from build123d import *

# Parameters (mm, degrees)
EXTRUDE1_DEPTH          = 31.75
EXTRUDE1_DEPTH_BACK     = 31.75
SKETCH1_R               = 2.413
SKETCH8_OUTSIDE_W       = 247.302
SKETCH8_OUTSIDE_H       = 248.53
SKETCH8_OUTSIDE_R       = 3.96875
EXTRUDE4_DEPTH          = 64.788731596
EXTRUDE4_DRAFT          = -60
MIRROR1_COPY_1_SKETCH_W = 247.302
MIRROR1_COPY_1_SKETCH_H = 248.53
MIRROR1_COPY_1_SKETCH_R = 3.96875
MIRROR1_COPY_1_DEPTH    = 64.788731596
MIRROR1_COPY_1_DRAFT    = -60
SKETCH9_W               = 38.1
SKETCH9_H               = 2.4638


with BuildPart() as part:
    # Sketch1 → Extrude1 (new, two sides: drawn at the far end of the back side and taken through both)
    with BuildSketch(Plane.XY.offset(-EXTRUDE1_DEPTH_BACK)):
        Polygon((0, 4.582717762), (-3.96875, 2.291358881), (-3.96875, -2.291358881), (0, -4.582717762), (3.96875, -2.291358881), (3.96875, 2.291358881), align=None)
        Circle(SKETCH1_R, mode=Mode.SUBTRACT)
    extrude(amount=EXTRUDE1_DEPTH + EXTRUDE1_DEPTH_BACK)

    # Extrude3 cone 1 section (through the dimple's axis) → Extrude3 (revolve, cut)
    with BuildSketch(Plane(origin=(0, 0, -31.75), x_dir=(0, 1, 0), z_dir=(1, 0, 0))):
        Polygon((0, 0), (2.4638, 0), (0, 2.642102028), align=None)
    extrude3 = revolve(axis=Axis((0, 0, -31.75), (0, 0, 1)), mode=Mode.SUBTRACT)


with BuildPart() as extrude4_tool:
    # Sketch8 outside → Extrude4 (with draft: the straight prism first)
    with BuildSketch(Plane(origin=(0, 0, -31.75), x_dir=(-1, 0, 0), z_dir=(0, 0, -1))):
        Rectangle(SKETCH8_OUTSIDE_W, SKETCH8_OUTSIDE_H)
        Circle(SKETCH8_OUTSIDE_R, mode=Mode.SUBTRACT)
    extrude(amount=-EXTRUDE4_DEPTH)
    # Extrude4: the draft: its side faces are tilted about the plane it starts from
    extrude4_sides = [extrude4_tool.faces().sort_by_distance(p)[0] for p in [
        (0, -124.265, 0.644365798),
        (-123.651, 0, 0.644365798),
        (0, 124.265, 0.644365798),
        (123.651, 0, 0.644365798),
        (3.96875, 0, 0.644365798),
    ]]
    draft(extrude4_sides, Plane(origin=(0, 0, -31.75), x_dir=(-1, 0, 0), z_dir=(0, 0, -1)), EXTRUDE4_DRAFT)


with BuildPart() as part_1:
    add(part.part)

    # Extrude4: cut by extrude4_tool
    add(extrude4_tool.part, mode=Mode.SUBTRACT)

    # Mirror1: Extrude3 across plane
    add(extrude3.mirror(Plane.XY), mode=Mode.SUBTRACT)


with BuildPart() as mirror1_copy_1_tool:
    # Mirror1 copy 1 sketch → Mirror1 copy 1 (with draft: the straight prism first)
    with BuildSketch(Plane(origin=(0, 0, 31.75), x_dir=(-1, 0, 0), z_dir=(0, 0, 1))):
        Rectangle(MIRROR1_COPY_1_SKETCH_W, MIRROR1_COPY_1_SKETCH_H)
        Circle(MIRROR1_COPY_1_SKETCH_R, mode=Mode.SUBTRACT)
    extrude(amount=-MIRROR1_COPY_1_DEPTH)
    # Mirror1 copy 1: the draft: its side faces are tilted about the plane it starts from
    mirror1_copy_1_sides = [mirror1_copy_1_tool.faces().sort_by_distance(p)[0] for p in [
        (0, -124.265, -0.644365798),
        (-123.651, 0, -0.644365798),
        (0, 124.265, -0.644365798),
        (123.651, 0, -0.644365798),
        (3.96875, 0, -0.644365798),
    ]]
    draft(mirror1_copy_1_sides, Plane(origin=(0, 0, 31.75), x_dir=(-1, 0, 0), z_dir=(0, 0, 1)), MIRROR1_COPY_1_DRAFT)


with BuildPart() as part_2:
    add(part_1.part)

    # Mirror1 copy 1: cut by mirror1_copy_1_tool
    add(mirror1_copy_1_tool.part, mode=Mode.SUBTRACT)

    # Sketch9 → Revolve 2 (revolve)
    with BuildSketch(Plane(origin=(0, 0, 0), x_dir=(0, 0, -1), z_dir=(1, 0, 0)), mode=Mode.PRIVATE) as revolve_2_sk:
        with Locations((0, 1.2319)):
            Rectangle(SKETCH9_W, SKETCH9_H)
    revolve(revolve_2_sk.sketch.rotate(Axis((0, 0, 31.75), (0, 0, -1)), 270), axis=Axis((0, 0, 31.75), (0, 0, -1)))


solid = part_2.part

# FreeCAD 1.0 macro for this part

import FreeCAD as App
import Part
import Sketcher
from FreeCAD import Vector
Q = App.Units.Quantity


def faces_at(feature, points):
    """Names of the faces that lie closest to the given points."""
    faces = feature.Shape.Faces
    near = lambda p: min(range(len(faces)), key=lambda i: faces[i].distToShape(Part.Vertex(*p))[0])
    return sorted({f"Face{near(p) + 1}" for p in points})


def add_polygon(sketch, points):
    """Adds a closed chain of lines whose ends are joined by coincident constraints."""
    first, n = sketch.GeometryCount, len(points)
    for a, b in zip(points, points[1:] + points[:1]):
        sketch.addGeometry(Part.LineSegment(App.Vector(*a, 0), App.Vector(*b, 0)), False)
    for i in range(n):
        sketch.addConstraint(Sketcher.Constraint("Coincident", first + i, 2, first + (i + 1) % n, 1))

doc = App.newDocument("Part")
params = doc.addObject("Spreadsheet::Sheet", "Params")
for row, (alias, value) in enumerate([
    ("sketch1_diameter", "0.19 in"),
    ("pad1_length", "1.25 in"),
    ("pad1_length2", "1.25 in"),
    ("sketch2_width", "0.097 in"),
    ("groove_angle", "360 deg"),
    ("sketch3_diameter", "0.3125 in"),
    ("pad2_length", "64.788732 mm"),
    ("draft_angle", "60 deg"),
    ("sketch4_diameter", "0.3125 in"),
    ("pad3_length", "64.788732 mm"),
    ("draft2_angle", "60 deg"),
    ("sketch5_height", "1.5 in"),
    ("sketch5_width", "0.097 in"),
    ("revolution_angle", "360 deg"),
], start=1):
    params.set(f"A{row}", alias)
    params.set(f"B{row}", "=" + value)
    params.setAlias(f"B{row}", alias)

body = doc.addObject("PartDesign::Body", "Body")

# Sketch on XY plane
sketch1 = body.newObject("Sketcher::SketchObject", "Sketch")
sketch1.AttachmentSupport = (doc.getObject("XY_Plane"), [""])
sketch1.MapMode = "FlatFace"
add_polygon(sketch1, [(0, 4.582718), (-3.96875, 2.291359), (-3.96875, -2.291359), (0, -4.582718), (3.96875, -2.291359), (3.96875, 2.291359)])  # lines 0-5
sketch1.addGeometry(Part.Circle(Vector(0, 0, 0), Vector(0, 0, 1), 2.413), False)  # 6
sketch1.addConstraint([
    Sketcher.Constraint("Vertical", 1),
    Sketcher.Constraint("Vertical", 4),
    Sketcher.Constraint("Coincident", 6, 3, -1, 1),
    Sketcher.Constraint("Symmetric", 0, 2, 3, 2, -1, 1),
    Sketcher.Constraint("Symmetric", 2, 2, 5, 2, -1, 1),
    Sketcher.Constraint("PointOnObject", 2, 2, -2),
    Sketcher.Constraint("Parallel", 2, 5),
    Sketcher.Constraint("Horizontal", 1, 2, 3, 2),
    Sketcher.Constraint("Diameter", 6, Q("0.19 in")),
    Sketcher.Constraint("Angle", 0, Q("-150 deg")),
    Sketcher.Constraint("DistanceX", 0, 2, -1, 1, Q("0.15625 in")),
    Sketcher.Constraint("DistanceY", 1, 2, 1, 1, Q("4.582718 mm")),
])
sketch1.setExpression("Constraints[14]", "Params.sketch1_diameter")
pad1 = body.newObject("PartDesign::Pad", "Pad")
pad1.Profile = sketch1
pad1.Type = "TwoLengths"
pad1.setExpression("Length", "Params.pad1_length")
pad1.setExpression("Length2", "Params.pad1_length2")

# Sketch on YZ plane
sketch2 = body.newObject("Sketcher::SketchObject", "Sketch001")
sketch2.AttachmentSupport = (doc.getObject("YZ_Plane"), [""])
sketch2.MapMode = "FlatFace"
add_polygon(sketch2, [(0, -31.75), (2.4638, -31.75), (0, -29.107898)])  # lines 0-2
sketch2.addConstraint([
    Sketcher.Constraint("Horizontal", 0),
    Sketcher.Constraint("Vertical", 2),
    Sketcher.Constraint("PointOnObject", 1, 2, -2),
    Sketcher.Constraint("Angle", 1, Q("133 deg")),
    Sketcher.Constraint("DistanceX", 0, 1, 0, 2, Q("0.097 in")),
    Sketcher.Constraint("DistanceY", 0, 2, -1, 1, Q("1.25 in")),
])
sketch2.setExpression("Constraints[7]", "Params.sketch2_width")
groove = body.newObject("PartDesign::Groove", "Groove")
groove.Profile = sketch2
groove.ReferenceAxis = (sketch2, ["V_Axis"])
groove.setExpression("Angle", "Params.groove_angle")
body2 = doc.addObject("PartDesign::Body", "Body001")

# Sketch on XY plane
sketch3 = body2.newObject("Sketcher::SketchObject", "Sketch002")
sketch3.AttachmentSupport = (doc.getObject("XY_Plane001"), [""])
sketch3.MapMode = "FlatFace"
sketch3.AttachmentOffset = App.Placement(Vector(0, 0, -1.25 * 25.4), App.Rotation())
add_polygon(sketch3, [(123.651, 124.265), (123.651, -124.265), (-123.651, -124.265), (-123.651, 124.265)])  # lines 0-3
sketch3.addGeometry(Part.Circle(Vector(0, 0, 0), Vector(0, 0, 1), 3.96875), False)  # 4
sketch3.addConstraint([
    Sketcher.Constraint("Vertical", 0),
    Sketcher.Constraint("Horizontal", 1),
    Sketcher.Constraint("Vertical", 2),
    Sketcher.Constraint("Horizontal", 3),
    Sketcher.Constraint("Coincident", 4, 3, -1, 1),
    Sketcher.Constraint("Symmetric", 0, 2, 2, 2, -1, 1),
    Sketcher.Constraint("Diameter", 4, Q("0.3125 in")),
    Sketcher.Constraint("DistanceX", 1, 2, 1, 1, Q("247.302 mm")),
    Sketcher.Constraint("DistanceY", 0, 2, 0, 1, Q("248.53 mm")),
])
sketch3.setExpression("Constraints[10]", "Params.sketch3_diameter")
pad2 = body2.newObject("PartDesign::Pad", "Pad001")
pad2.Profile = sketch3
pad2.setExpression("Length", "Params.pad2_length")
doc.recompute()

datumplane = body2.newObject("PartDesign::Plane", "DatumPlane")
datumplane.AttachmentSupport = (doc.getObject("XY_Plane001"), [""])
datumplane.MapMode = "FlatFace"
datumplane.AttachmentOffset = App.Placement(Vector(0, 0, -1.25 * 25.4), App.Rotation())
draft = body2.newObject("PartDesign::Draft", "Draft")
draft.Base = (pad2, faces_at(pad2, [
    (0, -124.265, 0.644),
    (-123.651, 0, 0.644),
    (0, 124.265, 0.644),
    (123.651, 0, 0.644),
    (3.969, 0, 0.644),
]))
draft.NeutralPlane = (datumplane, [""])
draft.setExpression("Angle", "Params.draft_angle")
draft.Reversed = False
doc.recompute()

boolean = body.newObject("PartDesign::Boolean", "Boolean")
boolean.Type = "Cut"
boolean.addObjects([body2])
doc.recompute()

mirrored = body.newObject("PartDesign::Mirrored", "Mirrored")
mirrored.Originals = [groove]
mirrored.MirrorPlane = (doc.getObject("XY_Plane"), [""])
body.Tip = mirrored
body3 = doc.addObject("PartDesign::Body", "Body002")

# Sketch on XY plane
sketch4 = body3.newObject("Sketcher::SketchObject", "Sketch003")
sketch4.AttachmentSupport = (doc.getObject("XY_Plane002"), [""])
sketch4.MapMode = "FlatFace"
sketch4.AttachmentOffset = App.Placement(Vector(0, 0, 1.25 * 25.4), App.Rotation())
add_polygon(sketch4, [(123.651, -124.265), (123.651, 124.265), (-123.651, 124.265), (-123.651, -124.265)])  # lines 0-3
sketch4.addGeometry(Part.Circle(Vector(0, 0, 0), Vector(0, 0, 1), 3.96875), False)  # 4
sketch4.addConstraint([
    Sketcher.Constraint("Vertical", 0),
    Sketcher.Constraint("Horizontal", 1),
    Sketcher.Constraint("Vertical", 2),
    Sketcher.Constraint("Horizontal", 3),
    Sketcher.Constraint("Coincident", 4, 3, -1, 1),
    Sketcher.Constraint("Symmetric", 0, 2, 2, 2, -1, 1),
    Sketcher.Constraint("Diameter", 4, Q("0.3125 in")),
    Sketcher.Constraint("DistanceX", 1, 2, 1, 1, Q("247.302 mm")),
    Sketcher.Constraint("DistanceY", 0, 1, 0, 2, Q("248.53 mm")),
])
sketch4.setExpression("Constraints[10]", "Params.sketch4_diameter")
pad3 = body3.newObject("PartDesign::Pad", "Pad002")
pad3.Profile = sketch4
pad3.setExpression("Length", "Params.pad3_length")
pad3.Reversed = True
doc.recompute()

datumplane2 = body3.newObject("PartDesign::Plane", "DatumPlane001")
datumplane2.AttachmentSupport = (doc.getObject("XY_Plane002"), [""])
datumplane2.MapMode = "FlatFace"
datumplane2.AttachmentOffset = App.Placement(Vector(0, 0, 1.25 * 25.4), App.Rotation())
draft2 = body3.newObject("PartDesign::Draft", "Draft001")
draft2.Base = (pad3, faces_at(pad3, [
    (0, -124.265, -0.644),
    (-123.651, 0, -0.644),
    (0, 124.265, -0.644),
    (123.651, 0, -0.644),
    (3.969, 0, -0.644),
]))
draft2.NeutralPlane = (datumplane2, [""])
draft2.setExpression("Angle", "Params.draft2_angle")
draft2.Reversed = True
doc.recompute()

boolean2 = body.newObject("PartDesign::Boolean", "Boolean001")
boolean2.Type = "Cut"
boolean2.addObjects([body3])

# Sketch on YZ plane
sketch5 = body.newObject("Sketcher::SketchObject", "Sketch004")
sketch5.AttachmentSupport = (doc.getObject("YZ_Plane"), [""])
sketch5.MapMode = "FlatFace"
add_polygon(sketch5, [(2.4638, 19.05), (0, 19.05), (0, -19.05), (2.4638, -19.05)])  # lines 0-3
sketch5.addConstraint([
    Sketcher.Constraint("Horizontal", 0),
    Sketcher.Constraint("Vertical", 1),
    Sketcher.Constraint("Horizontal", 2),
    Sketcher.Constraint("Vertical", 3),
    Sketcher.Constraint("Symmetric", 0, 2, 1, 2, -1, 1),
    Sketcher.Constraint("DistanceY", 1, 2, 1, 1, Q("1.5 in")),
    Sketcher.Constraint("DistanceX", 0, 2, 0, 1, Q("0.097 in")),
])
sketch5.setExpression("Constraints[9]", "Params.sketch5_height")
sketch5.setExpression("Constraints[10]", "Params.sketch5_width")
revolution = body.newObject("PartDesign::Revolution", "Revolution")
revolution.Profile = sketch5
revolution.ReferenceAxis = (sketch5, ["V_Axis"])
revolution.setExpression("Angle", "Params.revolution_angle")

doc.recompute()
